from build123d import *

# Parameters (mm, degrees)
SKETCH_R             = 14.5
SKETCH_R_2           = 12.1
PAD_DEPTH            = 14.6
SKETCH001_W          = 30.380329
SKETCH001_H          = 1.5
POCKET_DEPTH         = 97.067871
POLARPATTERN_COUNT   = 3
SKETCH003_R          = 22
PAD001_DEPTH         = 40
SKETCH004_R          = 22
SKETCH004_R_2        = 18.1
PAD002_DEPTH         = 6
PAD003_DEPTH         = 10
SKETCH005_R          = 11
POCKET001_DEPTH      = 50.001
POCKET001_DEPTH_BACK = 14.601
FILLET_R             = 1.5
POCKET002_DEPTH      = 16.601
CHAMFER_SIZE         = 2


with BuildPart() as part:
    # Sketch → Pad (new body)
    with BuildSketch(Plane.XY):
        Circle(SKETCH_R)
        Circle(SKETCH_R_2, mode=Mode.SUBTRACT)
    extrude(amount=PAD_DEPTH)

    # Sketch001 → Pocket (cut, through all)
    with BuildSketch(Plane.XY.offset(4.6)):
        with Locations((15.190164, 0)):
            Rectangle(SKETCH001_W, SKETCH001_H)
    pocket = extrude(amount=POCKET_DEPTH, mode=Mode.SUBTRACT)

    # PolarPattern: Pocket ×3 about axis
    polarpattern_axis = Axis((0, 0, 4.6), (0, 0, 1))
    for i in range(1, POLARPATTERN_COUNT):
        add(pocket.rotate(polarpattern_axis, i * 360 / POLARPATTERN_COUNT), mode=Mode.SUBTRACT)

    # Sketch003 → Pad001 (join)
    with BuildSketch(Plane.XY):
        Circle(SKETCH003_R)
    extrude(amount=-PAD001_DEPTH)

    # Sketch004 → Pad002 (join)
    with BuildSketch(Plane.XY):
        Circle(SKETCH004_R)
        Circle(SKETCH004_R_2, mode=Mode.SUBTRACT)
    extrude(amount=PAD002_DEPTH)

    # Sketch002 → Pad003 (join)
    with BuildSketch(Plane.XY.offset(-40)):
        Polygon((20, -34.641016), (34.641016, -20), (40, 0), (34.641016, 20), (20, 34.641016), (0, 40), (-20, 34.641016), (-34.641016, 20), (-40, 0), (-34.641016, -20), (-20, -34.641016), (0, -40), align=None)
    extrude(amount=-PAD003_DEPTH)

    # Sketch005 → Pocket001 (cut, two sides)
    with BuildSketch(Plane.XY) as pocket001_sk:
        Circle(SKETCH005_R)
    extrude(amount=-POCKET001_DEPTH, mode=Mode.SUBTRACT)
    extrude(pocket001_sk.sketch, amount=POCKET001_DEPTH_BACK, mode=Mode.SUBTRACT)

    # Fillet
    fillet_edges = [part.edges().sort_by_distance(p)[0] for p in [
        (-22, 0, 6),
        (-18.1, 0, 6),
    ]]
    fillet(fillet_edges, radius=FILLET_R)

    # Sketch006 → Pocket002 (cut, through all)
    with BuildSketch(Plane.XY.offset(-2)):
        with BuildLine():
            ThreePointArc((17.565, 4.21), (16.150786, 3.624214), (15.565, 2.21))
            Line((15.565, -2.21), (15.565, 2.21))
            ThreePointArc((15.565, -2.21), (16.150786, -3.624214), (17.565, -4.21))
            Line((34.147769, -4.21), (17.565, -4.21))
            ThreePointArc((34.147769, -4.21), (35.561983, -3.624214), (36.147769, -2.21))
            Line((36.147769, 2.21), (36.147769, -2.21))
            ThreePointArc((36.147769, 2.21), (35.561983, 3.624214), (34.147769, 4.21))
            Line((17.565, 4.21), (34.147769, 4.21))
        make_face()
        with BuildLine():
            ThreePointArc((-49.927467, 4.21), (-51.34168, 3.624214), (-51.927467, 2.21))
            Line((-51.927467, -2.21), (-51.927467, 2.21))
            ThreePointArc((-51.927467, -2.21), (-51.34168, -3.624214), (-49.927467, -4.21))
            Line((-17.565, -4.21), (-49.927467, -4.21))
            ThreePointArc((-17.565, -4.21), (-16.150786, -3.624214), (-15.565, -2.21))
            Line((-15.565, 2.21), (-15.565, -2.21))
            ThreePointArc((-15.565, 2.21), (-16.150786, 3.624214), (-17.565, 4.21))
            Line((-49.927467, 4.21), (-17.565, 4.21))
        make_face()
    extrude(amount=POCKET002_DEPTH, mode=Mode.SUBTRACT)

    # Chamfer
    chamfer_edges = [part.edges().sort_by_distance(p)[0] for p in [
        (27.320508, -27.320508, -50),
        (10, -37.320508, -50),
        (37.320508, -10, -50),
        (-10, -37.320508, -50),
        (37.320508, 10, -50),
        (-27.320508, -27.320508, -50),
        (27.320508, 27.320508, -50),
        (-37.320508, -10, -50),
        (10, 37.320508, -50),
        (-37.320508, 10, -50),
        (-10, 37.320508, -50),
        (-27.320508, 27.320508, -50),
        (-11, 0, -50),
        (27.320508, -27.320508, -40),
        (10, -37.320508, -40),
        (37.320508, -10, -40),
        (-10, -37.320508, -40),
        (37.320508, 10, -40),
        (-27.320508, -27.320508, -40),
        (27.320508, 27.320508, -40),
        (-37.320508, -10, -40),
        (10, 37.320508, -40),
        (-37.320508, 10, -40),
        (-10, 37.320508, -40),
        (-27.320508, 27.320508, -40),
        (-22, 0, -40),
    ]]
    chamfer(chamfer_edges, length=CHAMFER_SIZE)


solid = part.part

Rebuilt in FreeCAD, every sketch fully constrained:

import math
import FreeCAD as App
import Part
import Sketcher
from FreeCAD import Vector
Q = App.Units.Quantity


def edges_at(feature, points):
    """Names of the edges that pass closest to the given points."""
    edges = feature.Shape.Edges
    near = lambda p: min(range(len(edges)), key=lambda i: edges[i].distToShape(Part.Vertex(*p))[0])
    return sorted({f"Edge{near(p) + 1}" for p in points})


def add_polygon(sketch, points):
    """Adds a closed chain of lines whose ends are joined by coincident constraints."""
    first, n = sketch.GeometryCount, len(points)
    for a, b in zip(points, points[1:] + points[:1]):
        sketch.addGeometry(Part.LineSegment(App.Vector(*a, 0), App.Vector(*b, 0)), False)
    for i in range(n):
        sketch.addConstraint(Sketcher.Constraint("Coincident", first + i, 2, first + (i + 1) % n, 1))

doc = App.newDocument("Part")
body = doc.addObject("PartDesign::Body", "Body")

sketch1 = body.newObject("Sketcher::SketchObject", "Sketch")
sketch1.AttachmentSupport = (doc.getObject("XY_Plane"), [""])
sketch1.MapMode = "FlatFace"
sketch1.addGeometry([
    Part.Circle(Vector(0, 0, 0), Vector(0, 0, 1), 14),
    Part.Circle(Vector(0, 0, 0), Vector(0, 0, 1), 12),
], False)
sketch1.addConstraint([
    Sketcher.Constraint("Coincident", 0, 3, -1, 1),
    Sketcher.Constraint("Coincident", 1, 3, -1, 1),
    Sketcher.Constraint("Diameter", 0, Q("29 mm")),
    Sketcher.Constraint("Diameter", 1, Q("24.2 mm")),
])
pad1 = body.newObject("PartDesign::Pad", "Pad")
pad1.Profile = sketch1
pad1.Length = 14.6

sketch2 = body.newObject("Sketcher::SketchObject", "Sketch001")
sketch2.AttachmentSupport = (doc.getObject("XY_Plane"), [""])
sketch2.MapMode = "FlatFace"
sketch2.AttachmentOffset = App.Placement(Vector(0, 0, 4.6), App.Rotation())
add_polygon(sketch2, [(0, 0.8), (0, -0.8), (30.4, -0.8), (30.4, 0.8)])
sketch2.addConstraint([
    Sketcher.Constraint("Vertical", 0),
    Sketcher.Constraint("Horizontal", 1),
    Sketcher.Constraint("Vertical", 2),
    Sketcher.Constraint("Horizontal", 3),
    Sketcher.Constraint("Symmetric", 0, 2, 3, 2, -1, 1),
    Sketcher.Constraint("DistanceY", 0, 2, 0, 1, Q("1.5 mm")),
    Sketcher.Constraint("DistanceX", 1, 1, 1, 2, Q("30.380329 mm")),
])
pocket1 = body.newObject("PartDesign::Pocket", "Pocket")
pocket1.Profile = sketch2
pocket1.Type = "ThroughAll"
pocket1.Reversed = True
doc.recompute()

polarpattern = body.newObject("PartDesign::PolarPattern", "PolarPattern")
polarpattern.Originals = [pocket1]
polarpattern.Axis = (doc.getObject("Z_Axis"), [""])
polarpattern.Angle = 360
polarpattern.Occurrences = 3
body.Tip = polarpattern

sketch3 = body.newObject("Sketcher::SketchObject", "Sketch002")
sketch3.AttachmentSupport = (doc.getObject("XY_Plane"), [""])
sketch3.MapMode = "FlatFace"
sketch3.addGeometry(Part.Circle(Vector(0, 0, 0), Vector(0, 0, 1), 22), False)
sketch3.addConstraint([
    Sketcher.Constraint("Coincident", 0, 3, -1, 1),
    Sketcher.Constraint("Diameter", 0, Q("44 mm")),
])
pad2 = body.newObject("PartDesign::Pad", "Pad001")
pad2.Profile = sketch3
pad2.Length = 40
pad2.Reversed = True

sketch4 = body.newObject("Sketcher::SketchObject", "Sketch003")
sketch4.AttachmentSupport = (doc.getObject("XY_Plane"), [""])
sketch4.MapMode = "FlatFace"
sketch4.addGeometry([
    Part.Circle(Vector(0, 0, 0), Vector(0, 0, 1), 22),
    Part.Circle(Vector(0, 0, 0), Vector(0, 0, 1), 18),
], False)
sketch4.addConstraint([
    Sketcher.Constraint("Coincident", 0, 3, -1, 1),
    Sketcher.Constraint("Coincident", 1, 3, -1, 1),
    Sketcher.Constraint("Diameter", 0, Q("44 mm")),
    Sketcher.Constraint("Diameter", 1, Q("36.2 mm")),
])
pad3 = body.newObject("PartDesign::Pad", "Pad002")
pad3.Profile = sketch4
pad3.Length = 6

sketch5 = body.newObject("Sketcher::SketchObject", "Sketch004")
sketch5.AttachmentSupport = (doc.getObject("XY_Plane"), [""])
sketch5.MapMode = "FlatFace"
sketch5.AttachmentOffset = App.Placement(Vector(0, 0, -40), App.Rotation())
add_polygon(sketch5, [(20, -35), (35, -20), (40, 0), (35, 20), (20, 35), (0, 40), (-20, 35), (-35, 20), (-40, 0), (-35, -20), (-20, -35), (0, -40)])
sketch5.addConstraint([
    Sketcher.Constraint("Symmetric", 0, 2, 6, 2, -1, 1),
    Sketcher.Constraint("Symmetric", 1, 2, 7, 2, -1, 1),
    Sketcher.Constraint("Symmetric", 2, 2, 8, 2, -1, 1),
    Sketcher.Constraint("Symmetric", 3, 2, 9, 2, -1, 1),
    Sketcher.Constraint("Symmetric", 4, 2, 10, 2, -1, 1),
    Sketcher.Constraint("Symmetric", 5, 2, 11, 2, -1, 1),
    Sketcher.Constraint("Symmetric", 3, 2, 5, 2, -2),
    Sketcher.Constraint("Symmetric", 2, 2, 6, 2, -2),
    Sketcher.Constraint("PointOnObject", 1, 2, -1),
    Sketcher.Constraint("PointOnObject", 4, 2, -2),
    Sketcher.Constraint("Perpendicular", 0, 3),
    Sketcher.Constraint("Perpendicular", 1, 4),
    Sketcher.Constraint("Equal", 0, 1),
    Sketcher.Constraint("Equal", 3, 4),
    Sketcher.Constraint("Angle", 1, Q("75 deg")),
    Sketcher.Constraint("DistanceY", 0, 2, -1, 1, Q("20 mm")),
])
pad4 = body.newObject("PartDesign::Pad", "Pad003")
pad4.Profile = sketch5
pad4.Length = 10
pad4.Reversed = True

sketch6 = body.newObject("Sketcher::SketchObject", "Sketch005")
sketch6.AttachmentSupport = (doc.getObject("XY_Plane"), [""])
sketch6.MapMode = "FlatFace"
sketch6.addGeometry(Part.Circle(Vector(0, 0, 0), Vector(0, 0, 1), 11), False)
sketch6.addConstraint([
    Sketcher.Constraint("Coincident", 0, 3, -1, 1),
    Sketcher.Constraint("Diameter", 0, Q("22 mm")),
])
pocket2 = body.newObject("PartDesign::Pocket", "Pocket001")
pocket2.Profile = sketch6
pocket2.Type = "ThroughAll"
pocket2.Midplane = True
doc.recompute()

fillet = body.newObject("PartDesign::Fillet", "Fillet")
fillet.Base = (pocket2, edges_at(pocket2, [(-22, 0, 6), (-18.1, 0, 6)]))
fillet.Radius = 1.5

sketch7 = body.newObject("Sketcher::SketchObject", "Sketch006")
sketch7.AttachmentSupport = (doc.getObject("XY_Plane"), [""])
sketch7.MapMode = "FlatFace"
sketch7.AttachmentOffset = App.Placement(Vector(0, 0, -2), App.Rotation())
sketch7.addGeometry([
    Part.ArcOfCircle(Part.Circle(Vector(17.6, 2.2, 0), Vector(0, 0, 1), 2), math.radians(90), math.radians(180)),
    Part.LineSegment(Vector(15.6, 2.2, 0), Vector(15.6, -2.2, 0)),
    Part.ArcOfCircle(Part.Circle(Vector(17.6, -2.2, 0), Vector(0, 0, 1), 2), math.radians(180), math.radians(270)),
    Part.LineSegment(Vector(17.6, -4.2, 0), Vector(34.1, -4.2, 0)),
    Part.ArcOfCircle(Part.Circle(Vector(34.1, -2.2, 0), Vector(0, 0, 1), 2), math.radians(-90), math.radians(0)),
    Part.LineSegment(Vector(36.1, -2.2, 0), Vector(36.1, 2.2, 0)),
    Part.ArcOfCircle(Part.Circle(Vector(34.1, 2.2, 0), Vector(0, 0, 1), 2), math.radians(0), math.radians(90)),
    Part.LineSegment(Vector(34.1, 4.2, 0), Vector(17.6, 4.2, 0)),
    Part.ArcOfCircle(Part.Circle(Vector(-49.9, 2.2, 0), Vector(0, 0, 1), 2), math.radians(90), math.radians(180)),
    Part.LineSegment(Vector(-51.9, 2.2, 0), Vector(-51.9, -2.2, 0)),
    Part.ArcOfCircle(Part.Circle(Vector(-49.9, -2.2, 0), Vector(0, 0, 1), 2), math.radians(-180), math.radians(-90)),
    Part.LineSegment(Vector(-49.9, -4.2, 0), Vector(-17.6, -4.2, 0)),
    Part.ArcOfCircle(Part.Circle(Vector(-17.6, -2.2, 0), Vector(0, 0, 1), 2), math.radians(-90), math.radians(0)),
    Part.LineSegment(Vector(-15.6, -2.2, 0), Vector(-15.6, 2.2, 0)),
    Part.ArcOfCircle(Part.Circle(Vector(-17.6, 2.2, 0), Vector(0, 0, 1), 2), math.radians(0), math.radians(90)),
    Part.LineSegment(Vector(-17.6, 4.2, 0), Vector(-49.9, 4.2, 0)),
], False)
sketch7.addConstraint([
    Sketcher.Constraint("Tangent", 0, 2, 1, 1),
    Sketcher.Constraint("Tangent", 1, 2, 2, 1),
    Sketcher.Constraint("Tangent", 2, 2, 3, 1),
    Sketcher.Constraint("Tangent", 3, 2, 4, 1),
    Sketcher.Constraint("Tangent", 4, 2, 5, 1),
    Sketcher.Constraint("Tangent", 5, 2, 6, 1),
    Sketcher.Constraint("Tangent", 6, 2, 7, 1),
    Sketcher.Constraint("Tangent", 7, 2, 0, 1),
    Sketcher.Constraint("Tangent", 8, 2, 9, 1),
    Sketcher.Constraint("Tangent", 9, 2, 10, 1),
    Sketcher.Constraint("Tangent", 10, 2, 11, 1),
    Sketcher.Constraint("Tangent", 11, 2, 12, 1),
    Sketcher.Constraint("Tangent", 12, 2, 13, 1),
    Sketcher.Constraint("Tangent", 13, 2, 14, 1),
    Sketcher.Constraint("Tangent", 14, 2, 15, 1),
    Sketcher.Constraint("Tangent", 15, 2, 8, 1),
    Sketcher.Constraint("Vertical", 1),
    Sketcher.Constraint("Horizontal", 3),
    Sketcher.Constraint("Vertical", 5),
    Sketcher.Constraint("Horizontal", 7),
    Sketcher.Constraint("Vertical", 9),
    Sketcher.Constraint("Horizontal", 11),
    Sketcher.Constraint("Vertical", 13),
    Sketcher.Constraint("Horizontal", 15),
    Sketcher.Constraint("Equal", 0, 2),
    Sketcher.Constraint("Equal", 2, 4),
    Sketcher.Constraint("Equal", 4, 6),
    Sketcher.Constraint("Equal", 6, 8),
    Sketcher.Constraint("Equal", 8, 10),
    Sketcher.Constraint("Equal", 10, 12),
    Sketcher.Constraint("Equal", 12, 14),
    Sketcher.Constraint("Symmetric", 0, 3, 12, 3, -1, 1),
    Sketcher.Constraint("Horizontal", 6, 3, 8, 3),
    Sketcher.Constraint("Horizontal", 4, 3, 10, 3),
    Sketcher.Constraint("Radius", 0, Q("1.999999 mm")),
    Sketcher.Constraint("DistanceY", 1, 2, 1, 1, Q("4.42 mm")),
    Sketcher.Constraint("DistanceX", 14, 3, 0, 2, Q("33.129999 mm")),
    Sketcher.Constraint("DistanceX", 3, 1, 3, 2, Q("16.582769 mm")),
    Sketcher.Constraint("DistanceX", 11, 1, 11, 2, Q("32.362467 mm")),
])
pocket3 = body.newObject("PartDesign::Pocket", "Pocket002")
pocket3.Profile = sketch7
pocket3.Type = "ThroughAll"
pocket3.Reversed = True
doc.recompute()

chamfer = body.newObject("PartDesign::Chamfer", "Chamfer")
chamfer.Base = (pocket3, edges_at(pocket3, [
    (27.321, -27.321, -50),
    (10, -37.321, -50),
    (37.321, -10, -50),
    (-10, -37.321, -50),
    (37.321, 10, -50),
    (-27.321, -27.321, -50),
    (27.321, 27.321, -50),
    (-37.321, -10, -50),
    (10, 37.321, -50),
    (-37.321, 10, -50),
    (-10, 37.321, -50),
    (-27.321, 27.321, -50),
    (-11, 0, -50),
    (27.321, -27.321, -40),
    (10, -37.321, -40),
    (37.321, -10, -40),
    (-10, -37.321, -40),
    (37.321, 10, -40),
    (-27.321, -27.321, -40),
    (27.321, 27.321, -40),
    (-37.321, -10, -40),
    (10, 37.321, -40),
    (-37.321, 10, -40),
    (-10, 37.321, -40),
    (-27.321, 27.321, -40),
    (-22, 0, -40),
]))
chamfer.Size = 2

doc.recompute()
